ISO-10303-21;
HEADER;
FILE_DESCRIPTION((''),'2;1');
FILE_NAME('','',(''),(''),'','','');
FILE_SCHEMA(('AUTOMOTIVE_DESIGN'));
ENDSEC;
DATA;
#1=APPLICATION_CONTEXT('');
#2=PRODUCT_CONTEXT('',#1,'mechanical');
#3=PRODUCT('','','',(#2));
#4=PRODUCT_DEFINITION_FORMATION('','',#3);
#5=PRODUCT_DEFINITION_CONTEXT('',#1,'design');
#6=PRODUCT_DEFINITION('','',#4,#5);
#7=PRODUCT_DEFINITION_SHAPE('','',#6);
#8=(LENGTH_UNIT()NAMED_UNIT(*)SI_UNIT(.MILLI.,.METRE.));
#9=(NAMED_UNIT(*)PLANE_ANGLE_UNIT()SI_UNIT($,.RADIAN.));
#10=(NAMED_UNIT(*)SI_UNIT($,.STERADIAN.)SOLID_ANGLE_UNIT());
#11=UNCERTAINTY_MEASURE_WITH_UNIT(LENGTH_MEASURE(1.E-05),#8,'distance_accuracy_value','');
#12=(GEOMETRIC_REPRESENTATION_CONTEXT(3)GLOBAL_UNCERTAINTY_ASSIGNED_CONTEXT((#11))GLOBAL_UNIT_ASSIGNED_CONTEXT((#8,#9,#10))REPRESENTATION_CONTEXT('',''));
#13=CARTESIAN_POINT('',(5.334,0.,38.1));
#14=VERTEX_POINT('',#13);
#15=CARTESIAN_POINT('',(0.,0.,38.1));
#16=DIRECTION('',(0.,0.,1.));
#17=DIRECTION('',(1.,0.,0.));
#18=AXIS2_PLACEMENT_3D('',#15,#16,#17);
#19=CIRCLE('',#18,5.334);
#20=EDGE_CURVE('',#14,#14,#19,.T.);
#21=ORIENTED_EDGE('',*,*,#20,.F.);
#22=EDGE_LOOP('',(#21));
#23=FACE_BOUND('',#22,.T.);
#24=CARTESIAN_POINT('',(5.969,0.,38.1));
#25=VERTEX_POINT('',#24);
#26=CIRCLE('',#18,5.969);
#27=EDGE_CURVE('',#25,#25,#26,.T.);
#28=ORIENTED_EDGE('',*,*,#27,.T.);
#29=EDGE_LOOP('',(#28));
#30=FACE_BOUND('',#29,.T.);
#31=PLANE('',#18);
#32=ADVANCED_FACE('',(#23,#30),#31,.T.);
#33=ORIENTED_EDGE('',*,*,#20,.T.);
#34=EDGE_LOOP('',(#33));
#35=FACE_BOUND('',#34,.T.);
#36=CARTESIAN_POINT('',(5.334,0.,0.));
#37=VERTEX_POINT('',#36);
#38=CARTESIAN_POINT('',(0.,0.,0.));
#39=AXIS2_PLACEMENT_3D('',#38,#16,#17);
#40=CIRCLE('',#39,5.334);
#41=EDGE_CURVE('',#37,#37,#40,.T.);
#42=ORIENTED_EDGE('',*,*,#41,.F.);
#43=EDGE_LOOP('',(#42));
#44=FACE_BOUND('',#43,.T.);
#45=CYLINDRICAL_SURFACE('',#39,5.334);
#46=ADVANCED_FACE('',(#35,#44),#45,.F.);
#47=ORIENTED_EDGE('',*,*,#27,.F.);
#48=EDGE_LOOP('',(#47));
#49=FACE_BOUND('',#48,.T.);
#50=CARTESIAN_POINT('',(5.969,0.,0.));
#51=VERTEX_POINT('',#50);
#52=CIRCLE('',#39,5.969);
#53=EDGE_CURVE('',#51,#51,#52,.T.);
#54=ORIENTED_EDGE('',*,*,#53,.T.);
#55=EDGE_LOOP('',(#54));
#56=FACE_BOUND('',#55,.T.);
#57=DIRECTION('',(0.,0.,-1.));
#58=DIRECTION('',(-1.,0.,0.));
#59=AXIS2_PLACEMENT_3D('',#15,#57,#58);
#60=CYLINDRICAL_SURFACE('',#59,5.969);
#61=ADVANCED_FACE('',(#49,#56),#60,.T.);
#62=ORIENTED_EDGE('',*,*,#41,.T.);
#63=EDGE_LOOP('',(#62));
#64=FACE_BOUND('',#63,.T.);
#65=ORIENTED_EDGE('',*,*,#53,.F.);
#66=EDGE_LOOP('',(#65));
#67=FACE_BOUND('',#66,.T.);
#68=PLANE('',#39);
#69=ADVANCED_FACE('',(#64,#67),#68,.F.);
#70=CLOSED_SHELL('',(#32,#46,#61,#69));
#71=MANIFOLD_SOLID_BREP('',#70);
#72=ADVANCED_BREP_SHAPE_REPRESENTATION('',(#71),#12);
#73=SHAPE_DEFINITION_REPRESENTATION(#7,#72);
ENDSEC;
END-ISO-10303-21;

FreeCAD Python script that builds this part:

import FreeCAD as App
import Part
import Sketcher
from FreeCAD import Vector
Q = App.Units.Quantity

doc = App.newDocument("Part")
body = doc.addObject("PartDesign::Body", "Body")

# Sketch on XY plane
sketch1 = body.newObject("Sketcher::SketchObject", "Sketch")
sketch1.AttachmentSupport = (doc.getObject("XY_Plane"), [""])
sketch1.MapMode = "FlatFace"
sketch1.addGeometry(Part.Circle(Vector(0, 0, 0), Vector(0, 0, 1), 6), False)
sketch1.addConstraint([
    Sketcher.Constraint("Coincident", 0, 3, -1, 1),
    Sketcher.Constraint("Diameter", 0, Q("0.47 in")),
])
pad1 = body.newObject("PartDesign::Pad", "Pad")
pad1.Profile = sketch1
pad1.Length = Q("1.5 in")

# Sketch on XY plane
sketch2 = body.newObject("Sketcher::SketchObject", "Sketch001")
sketch2.AttachmentSupport = (doc.getObject("XY_Plane"), [""])
sketch2.MapMode = "FlatFace"
sketch2.AttachmentOffset = App.Placement(Vector(0, 0, 1.5 * 25.4), App.Rotation())
sketch2.addGeometry(Part.Circle(Vector(0, 0, 0), Vector(0, 0, 1), 5), False)
sketch2.addConstraint([
    Sketcher.Constraint("Coincident", 0, 3, -1, 1),
    Sketcher.Constraint("Diameter", 0, Q("0.42 in")),
])
pocket1 = body.newObject("PartDesign::Pocket", "Pocket")
pocket1.Profile = sketch2
pocket1.Length = Q("1.5 in")

doc.recompute()
